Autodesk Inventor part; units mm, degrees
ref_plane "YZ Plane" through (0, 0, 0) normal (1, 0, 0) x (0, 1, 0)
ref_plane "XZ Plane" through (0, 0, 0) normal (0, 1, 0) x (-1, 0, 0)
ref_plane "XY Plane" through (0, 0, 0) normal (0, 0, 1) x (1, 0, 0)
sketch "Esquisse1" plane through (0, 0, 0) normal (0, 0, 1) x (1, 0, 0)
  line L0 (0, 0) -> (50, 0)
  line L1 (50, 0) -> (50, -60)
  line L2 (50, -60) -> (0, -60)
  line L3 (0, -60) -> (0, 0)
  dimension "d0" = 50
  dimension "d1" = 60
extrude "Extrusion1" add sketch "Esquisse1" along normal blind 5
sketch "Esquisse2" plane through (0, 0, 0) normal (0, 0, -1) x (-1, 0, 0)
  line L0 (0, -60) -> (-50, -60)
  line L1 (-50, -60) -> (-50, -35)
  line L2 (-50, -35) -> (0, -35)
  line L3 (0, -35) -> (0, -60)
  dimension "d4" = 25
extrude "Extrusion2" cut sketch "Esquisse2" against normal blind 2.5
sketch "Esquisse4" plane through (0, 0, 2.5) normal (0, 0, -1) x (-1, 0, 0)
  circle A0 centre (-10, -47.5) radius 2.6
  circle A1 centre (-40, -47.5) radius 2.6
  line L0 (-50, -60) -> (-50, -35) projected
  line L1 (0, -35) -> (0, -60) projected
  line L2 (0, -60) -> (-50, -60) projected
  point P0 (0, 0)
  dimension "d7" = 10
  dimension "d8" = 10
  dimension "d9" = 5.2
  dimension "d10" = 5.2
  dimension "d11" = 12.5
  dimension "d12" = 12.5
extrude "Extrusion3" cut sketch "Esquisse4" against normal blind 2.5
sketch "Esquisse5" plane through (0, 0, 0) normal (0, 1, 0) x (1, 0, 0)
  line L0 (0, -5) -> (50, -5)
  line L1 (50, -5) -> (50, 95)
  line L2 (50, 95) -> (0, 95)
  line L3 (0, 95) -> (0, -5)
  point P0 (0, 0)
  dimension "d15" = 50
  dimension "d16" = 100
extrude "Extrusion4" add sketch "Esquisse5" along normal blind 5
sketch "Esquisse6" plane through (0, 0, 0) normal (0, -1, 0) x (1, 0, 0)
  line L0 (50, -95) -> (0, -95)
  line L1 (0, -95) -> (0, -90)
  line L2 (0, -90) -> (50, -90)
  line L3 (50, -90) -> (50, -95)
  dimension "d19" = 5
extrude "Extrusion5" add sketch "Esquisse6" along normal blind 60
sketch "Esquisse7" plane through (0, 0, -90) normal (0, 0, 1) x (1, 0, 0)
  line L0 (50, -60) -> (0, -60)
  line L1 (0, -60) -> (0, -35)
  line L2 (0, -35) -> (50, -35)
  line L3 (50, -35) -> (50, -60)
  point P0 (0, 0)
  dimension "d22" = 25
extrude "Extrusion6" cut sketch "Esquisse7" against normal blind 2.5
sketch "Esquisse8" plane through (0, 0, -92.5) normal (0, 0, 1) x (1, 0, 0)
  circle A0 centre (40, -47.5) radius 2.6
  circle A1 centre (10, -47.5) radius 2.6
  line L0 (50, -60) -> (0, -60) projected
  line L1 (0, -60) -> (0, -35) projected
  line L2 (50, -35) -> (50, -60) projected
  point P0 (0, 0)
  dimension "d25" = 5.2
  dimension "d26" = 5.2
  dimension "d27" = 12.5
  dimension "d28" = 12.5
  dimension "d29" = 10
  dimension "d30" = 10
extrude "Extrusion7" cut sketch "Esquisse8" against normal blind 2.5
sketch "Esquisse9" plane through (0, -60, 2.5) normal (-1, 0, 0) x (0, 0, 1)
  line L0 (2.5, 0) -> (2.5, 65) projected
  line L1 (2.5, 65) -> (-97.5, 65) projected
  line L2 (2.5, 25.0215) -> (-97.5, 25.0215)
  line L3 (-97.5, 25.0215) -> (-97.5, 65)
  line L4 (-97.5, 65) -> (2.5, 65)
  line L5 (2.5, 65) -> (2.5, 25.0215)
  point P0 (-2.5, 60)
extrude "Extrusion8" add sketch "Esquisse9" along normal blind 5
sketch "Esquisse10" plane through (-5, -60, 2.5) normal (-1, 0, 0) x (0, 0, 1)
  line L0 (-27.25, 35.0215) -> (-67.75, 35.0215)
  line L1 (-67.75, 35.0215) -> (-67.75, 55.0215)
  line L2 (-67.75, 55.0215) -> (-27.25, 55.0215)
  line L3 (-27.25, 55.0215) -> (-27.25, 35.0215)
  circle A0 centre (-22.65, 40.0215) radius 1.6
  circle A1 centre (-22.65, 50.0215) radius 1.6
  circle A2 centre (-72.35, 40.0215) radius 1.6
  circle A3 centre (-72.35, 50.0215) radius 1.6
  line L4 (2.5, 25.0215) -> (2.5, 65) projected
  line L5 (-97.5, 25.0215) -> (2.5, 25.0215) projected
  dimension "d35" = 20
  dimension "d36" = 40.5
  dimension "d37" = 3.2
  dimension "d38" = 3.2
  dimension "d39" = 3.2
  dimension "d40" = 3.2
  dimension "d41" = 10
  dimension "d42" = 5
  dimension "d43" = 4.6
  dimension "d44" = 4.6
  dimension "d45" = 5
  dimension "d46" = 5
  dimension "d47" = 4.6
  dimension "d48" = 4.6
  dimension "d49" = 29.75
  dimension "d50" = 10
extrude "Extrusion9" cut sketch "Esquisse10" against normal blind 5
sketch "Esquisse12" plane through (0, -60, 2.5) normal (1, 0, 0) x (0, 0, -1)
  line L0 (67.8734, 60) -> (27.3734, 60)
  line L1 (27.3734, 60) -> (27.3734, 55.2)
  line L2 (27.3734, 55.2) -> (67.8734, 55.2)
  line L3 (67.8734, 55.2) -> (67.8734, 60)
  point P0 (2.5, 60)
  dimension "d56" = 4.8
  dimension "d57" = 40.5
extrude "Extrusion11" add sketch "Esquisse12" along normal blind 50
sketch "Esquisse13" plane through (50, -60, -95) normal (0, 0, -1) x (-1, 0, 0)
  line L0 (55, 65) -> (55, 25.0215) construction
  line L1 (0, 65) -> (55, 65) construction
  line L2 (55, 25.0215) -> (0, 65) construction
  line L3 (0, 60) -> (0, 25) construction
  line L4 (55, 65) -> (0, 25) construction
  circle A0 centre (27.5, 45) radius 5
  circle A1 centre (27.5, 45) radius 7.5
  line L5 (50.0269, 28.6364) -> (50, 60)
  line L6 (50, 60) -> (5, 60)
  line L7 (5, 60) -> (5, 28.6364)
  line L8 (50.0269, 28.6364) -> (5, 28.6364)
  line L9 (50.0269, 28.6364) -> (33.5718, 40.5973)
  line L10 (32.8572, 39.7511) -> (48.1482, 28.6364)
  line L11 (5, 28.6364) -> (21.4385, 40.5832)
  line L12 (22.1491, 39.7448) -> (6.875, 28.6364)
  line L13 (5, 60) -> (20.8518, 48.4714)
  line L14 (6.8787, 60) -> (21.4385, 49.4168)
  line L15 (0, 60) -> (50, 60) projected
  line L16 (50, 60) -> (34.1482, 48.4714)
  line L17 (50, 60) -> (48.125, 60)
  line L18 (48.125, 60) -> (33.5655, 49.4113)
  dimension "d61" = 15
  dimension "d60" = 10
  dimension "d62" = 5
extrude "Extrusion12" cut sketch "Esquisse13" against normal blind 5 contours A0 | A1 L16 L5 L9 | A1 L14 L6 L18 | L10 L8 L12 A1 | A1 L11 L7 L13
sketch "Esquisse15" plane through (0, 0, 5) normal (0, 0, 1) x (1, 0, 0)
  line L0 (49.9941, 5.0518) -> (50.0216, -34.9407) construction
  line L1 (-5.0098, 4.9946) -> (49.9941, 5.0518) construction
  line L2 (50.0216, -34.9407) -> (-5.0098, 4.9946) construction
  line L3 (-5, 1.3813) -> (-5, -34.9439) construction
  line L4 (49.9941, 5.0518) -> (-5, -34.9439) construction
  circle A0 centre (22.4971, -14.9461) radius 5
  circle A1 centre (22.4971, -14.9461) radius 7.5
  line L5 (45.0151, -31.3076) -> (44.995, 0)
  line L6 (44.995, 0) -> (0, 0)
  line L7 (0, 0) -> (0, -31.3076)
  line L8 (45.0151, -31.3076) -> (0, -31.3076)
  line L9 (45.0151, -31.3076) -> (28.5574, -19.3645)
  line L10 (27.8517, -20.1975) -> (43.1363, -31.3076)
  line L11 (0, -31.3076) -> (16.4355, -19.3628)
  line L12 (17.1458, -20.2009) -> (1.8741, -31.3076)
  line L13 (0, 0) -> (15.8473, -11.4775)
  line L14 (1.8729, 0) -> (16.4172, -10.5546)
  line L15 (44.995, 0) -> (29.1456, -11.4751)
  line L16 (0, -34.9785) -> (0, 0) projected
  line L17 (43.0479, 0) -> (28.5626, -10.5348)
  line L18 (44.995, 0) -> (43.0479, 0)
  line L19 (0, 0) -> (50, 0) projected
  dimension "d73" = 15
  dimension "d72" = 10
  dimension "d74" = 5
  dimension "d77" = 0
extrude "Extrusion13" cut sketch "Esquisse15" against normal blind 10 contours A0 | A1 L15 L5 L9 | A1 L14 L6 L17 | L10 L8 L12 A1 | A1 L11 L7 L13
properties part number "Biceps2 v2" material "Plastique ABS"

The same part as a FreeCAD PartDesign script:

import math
import FreeCAD as App
import Part
import Sketcher
from FreeCAD import Vector
Q = App.Units.Quantity


def add_polygon(sketch, points):
    """Adds a closed chain of lines whose ends are joined by coincident constraints."""
    first, n = sketch.GeometryCount, len(points)
    for a, b in zip(points, points[1:] + points[:1]):
        sketch.addGeometry(Part.LineSegment(App.Vector(*a, 0), App.Vector(*b, 0)), False)
    for i in range(n):
        sketch.addConstraint(Sketcher.Constraint("Coincident", first + i, 2, first + (i + 1) % n, 1))

doc = App.newDocument("Part")
params = doc.addObject("Spreadsheet::Sheet", "Params")
for row, (alias, value) in enumerate([
    ("sketch1_width", "50 mm"),
    ("sketch1_height", "60 mm"),
    ("pad1_length", "5 mm"),
    ("sketch2_height", "25 mm"),
    ("sketch2_width", "50 mm"),
    ("pocket1_length", "2.5 mm"),
    ("sketch3_diameter", "5.2 mm"),
    ("pocket2_length", "2.5 mm"),
    ("sketch4_width", "50 mm"),
    ("sketch4_height", "100 mm"),
    ("pad2_length", "5 mm"),
    ("sketch5_height", "5 mm"),
    ("sketch5_width", "50 mm"),
    ("pad3_length", "60 mm"),
    ("sketch6_height", "25 mm"),
    ("sketch6_width", "50 mm"),
    ("pocket3_length", "2.5 mm"),
    ("sketch7_diameter", "5.2 mm"),
    ("pocket4_length", "2.5 mm"),
    ("sketch8_height", "100 mm"),
    ("pad4_length", "5 mm"),
    ("sketch9_diameter", "3.2 mm"),
    ("sketch9_width", "20 mm"),
    ("sketch9_height", "40.5 mm"),
    ("pocket5_length", "5 mm"),
    ("sketch10_width", "4.8 mm"),
    ("sketch10_height", "40.5 mm"),
    ("pad5_length", "50 mm"),
    ("sketch11_diameter", "10 mm"),
    ("sketch11_radius", "7.5 mm"),
    ("sketch11_radius2", "7.5 mm"),
    ("sketch11_radius3", "7.5 mm"),
    ("sketch11_radius4", "7.5 mm"),
    ("pocket6_length", "5 mm"),
    ("sketch12_diameter", "10 mm"),
    ("sketch12_radius", "7.5 mm"),
    ("sketch12_radius2", "7.5 mm"),
    ("sketch12_radius3", "7.5 mm"),
    ("sketch12_radius4", "7.5 mm"),
    ("pocket7_length", "10 mm"),
], start=1):
    params.set(f"A{row}", alias)
    params.set(f"B{row}", "=" + value)
    params.setAlias(f"B{row}", alias)

body = doc.addObject("PartDesign::Body", "Body")

# Sketch on XY plane
sketch1 = body.newObject("Sketcher::SketchObject", "Sketch")
sketch1.AttachmentSupport = (doc.getObject("XY_Plane"), [""])
sketch1.MapMode = "FlatFace"
add_polygon(sketch1, [(50, 0), (0, 0), (0, -60), (50, -60)])  # lines 0-3
sketch1.addConstraint(Sketcher.Constraint("Horizontal", 0))
sketch1.addConstraint(Sketcher.Constraint("Vertical", 1))
sketch1.addConstraint(Sketcher.Constraint("Horizontal", 2))
sketch1.addConstraint(Sketcher.Constraint("Vertical", 3))
sketch1.addConstraint(Sketcher.Constraint("Coincident", 0, 2, -1, 1))
sketch1.addConstraint(Sketcher.Constraint("DistanceX", 0, 2, 0, 1, Q("50 mm")))
sketch1.addConstraint(Sketcher.Constraint("DistanceY", 1, 2, 1, 1, Q("60 mm")))
sketch1.setExpression("Constraints[9]", "Params.sketch1_width")
sketch1.setExpression("Constraints[10]", "Params.sketch1_height")
pad1 = body.newObject("PartDesign::Pad", "Pad")
pad1.Profile = sketch1
pad1.setExpression("Length", "Params.pad1_length")

# Sketch on XY plane
sketch2 = body.newObject("Sketcher::SketchObject", "Sketch001")
sketch2.AttachmentSupport = (doc.getObject("XY_Plane"), [""])
sketch2.MapMode = "FlatFace"
add_polygon(sketch2, [(50, -60), (0, -60), (0, -35), (50, -35)])  # lines 0-3
sketch2.addConstraint(Sketcher.Constraint("Horizontal", 0))
sketch2.addConstraint(Sketcher.Constraint("Vertical", 1))
sketch2.addConstraint(Sketcher.Constraint("Horizontal", 2))
sketch2.addConstraint(Sketcher.Constraint("Vertical", 3))
sketch2.addConstraint(Sketcher.Constraint("PointOnObject", 0, 2, -2))
sketch2.addConstraint(Sketcher.Constraint("DistanceY", 1, 1, 1, 2, Q("25 mm")))
sketch2.addConstraint(Sketcher.Constraint("DistanceX", 0, 2, 0, 1, Q("50 mm")))
sketch2.addConstraint(Sketcher.Constraint("DistanceY", 0, 2, -1, 1, Q("60 mm")))
sketch2.setExpression("Constraints[9]", "Params.sketch2_height")
sketch2.setExpression("Constraints[10]", "Params.sketch2_width")
pocket1 = body.newObject("PartDesign::Pocket", "Pocket")
pocket1.Profile = sketch2
pocket1.setExpression("Length", "Params.pocket1_length")
pocket1.Reversed = True

# Sketch on XY plane
sketch3 = body.newObject("Sketcher::SketchObject", "Sketch002")
sketch3.AttachmentSupport = (doc.getObject("XY_Plane"), [""])
sketch3.MapMode = "FlatFace"
sketch3.AttachmentOffset = App.Placement(Vector(0, 0, 2.5), App.Rotation())
sketch3.addGeometry(Part.Circle(Vector(10, -47.5, 0), Vector(0, 0, 1), 2.6), False)
sketch3.addGeometry(Part.Circle(Vector(40, -47.5, 0), Vector(0, 0, 1), 2.6), False)
sketch3.addConstraint(Sketcher.Constraint("Equal", 0, 1))
sketch3.addConstraint(Sketcher.Constraint("Horizontal", 0, 3, 1, 3))
sketch3.addConstraint(Sketcher.Constraint("Diameter", 0, Q("5.2 mm")))
sketch3.addConstraint(Sketcher.Constraint("DistanceX", -1, 1, 0, 3, Q("10 mm")))
sketch3.addConstraint(Sketcher.Constraint("DistanceX", -1, 1, 1, 3, Q("40 mm")))
sketch3.addConstraint(Sketcher.Constraint("DistanceY", 0, 3, -1, 1, Q("47.5 mm")))
sketch3.setExpression("Constraints[2]", "Params.sketch3_diameter")
pocket2 = body.newObject("PartDesign::Pocket", "Pocket001")
pocket2.Profile = sketch3
pocket2.setExpression("Length", "Params.pocket2_length")
pocket2.Reversed = True

# Sketch on XZ plane
sketch4 = body.newObject("Sketcher::SketchObject", "Sketch003")
sketch4.AttachmentSupport = (doc.getObject("XZ_Plane"), [""])
sketch4.MapMode = "FlatFace"
add_polygon(sketch4, [(0, -95), (0, 5), (50, 5), (50, -95)])  # lines 0-3
sketch4.addConstraint(Sketcher.Constraint("Vertical", 0))
sketch4.addConstraint(Sketcher.Constraint("Horizontal", 1))
sketch4.addConstraint(Sketcher.Constraint("Vertical", 2))
sketch4.addConstraint(Sketcher.Constraint("Horizontal", 3))
sketch4.addConstraint(Sketcher.Constraint("PointOnObject", 0, 2, -2))
sketch4.addConstraint(Sketcher.Constraint("DistanceX", 1, 1, 1, 2, Q("50 mm")))
sketch4.addConstraint(Sketcher.Constraint("DistanceY", 0, 1, 0, 2, Q("100 mm")))
sketch4.addConstraint(Sketcher.Constraint("DistanceY", -1, 1, 0, 2, Q("5 mm")))
sketch4.setExpression("Constraints[9]", "Params.sketch4_width")
sketch4.setExpression("Constraints[10]", "Params.sketch4_height")
pad2 = body.newObject("PartDesign::Pad", "Pad001")
pad2.Profile = sketch4
pad2.setExpression("Length", "Params.pad2_length")
pad2.Reversed = True

# Sketch on XZ plane
sketch5 = body.newObject("Sketcher::SketchObject", "Sketch004")
sketch5.AttachmentSupport = (doc.getObject("XZ_Plane"), [""])
sketch5.MapMode = "FlatFace"
add_polygon(sketch5, [(0, -95), (50, -95), (50, -90), (0, -90)])  # lines 0-3
sketch5.addConstraint(Sketcher.Constraint("Horizontal", 0))
sketch5.addConstraint(Sketcher.Constraint("Vertical", 1))
sketch5.addConstraint(Sketcher.Constraint("Horizontal", 2))
sketch5.addConstraint(Sketcher.Constraint("Vertical", 3))
sketch5.addConstraint(Sketcher.Constraint("PointOnObject", 2, 2, -2))
sketch5.addConstraint(Sketcher.Constraint("DistanceY", 1, 1, 1, 2, Q("5 mm")))
sketch5.addConstraint(Sketcher.Constraint("DistanceX", 0, 1, 0, 2, Q("50 mm")))
sketch5.addConstraint(Sketcher.Constraint("DistanceY", 0, 2, -1, 1, Q("95 mm")))
sketch5.setExpression("Constraints[9]", "Params.sketch5_height")
sketch5.setExpression("Constraints[10]", "Params.sketch5_width")
pad3 = body.newObject("PartDesign::Pad", "Pad002")
pad3.Profile = sketch5
pad3.setExpression("Length", "Params.pad3_length")

# Sketch on XY plane
sketch6 = body.newObject("Sketcher::SketchObject", "Sketch005")
sketch6.AttachmentSupport = (doc.getObject("XY_Plane"), [""])
sketch6.MapMode = "FlatFace"
sketch6.AttachmentOffset = App.Placement(Vector(0, 0, -90), App.Rotation())
add_polygon(sketch6, [(0, -60), (50, -60), (50, -35), (0, -35)])  # lines 0-3
sketch6.addConstraint(Sketcher.Constraint("Horizontal", 0))
sketch6.addConstraint(Sketcher.Constraint("Vertical", 1))
sketch6.addConstraint(Sketcher.Constraint("Horizontal", 2))
sketch6.addConstraint(Sketcher.Constraint("Vertical", 3))
sketch6.addConstraint(Sketcher.Constraint("PointOnObject", 2, 2, -2))
sketch6.addConstraint(Sketcher.Constraint("DistanceY", 1, 1, 1, 2, Q("25 mm")))
sketch6.addConstraint(Sketcher.Constraint("DistanceX", 0, 1, 0, 2, Q("50 mm")))
sketch6.addConstraint(Sketcher.Constraint("DistanceY", 0, 2, -1, 1, Q("60 mm")))
sketch6.setExpression("Constraints[9]", "Params.sketch6_height")
sketch6.setExpression("Constraints[10]", "Params.sketch6_width")
pocket3 = body.newObject("PartDesign::Pocket", "Pocket002")
pocket3.Profile = sketch6
pocket3.setExpression("Length", "Params.pocket3_length")

# Sketch on XY plane
sketch7 = body.newObject("Sketcher::SketchObject", "Sketch006")
sketch7.AttachmentSupport = (doc.getObject("XY_Plane"), [""])
sketch7.MapMode = "FlatFace"
sketch7.AttachmentOffset = App.Placement(Vector(0, 0, -92.5), App.Rotation())
sketch7.addGeometry(Part.Circle(Vector(40, -47.5, 0), Vector(0, 0, 1), 2.6), False)
sketch7.addGeometry(Part.Circle(Vector(10, -47.5, 0), Vector(0, 0, 1), 2.6), False)
sketch7.addConstraint(Sketcher.Constraint("Equal", 0, 1))
sketch7.addConstraint(Sketcher.Constraint("Horizontal", 0, 3, 1, 3))
sketch7.addConstraint(Sketcher.Constraint("Diameter", 0, Q("5.2 mm")))
sketch7.addConstraint(Sketcher.Constraint("DistanceX", -1, 1, 1, 3, Q("10 mm")))
sketch7.addConstraint(Sketcher.Constraint("DistanceX", -1, 1, 0, 3, Q("40 mm")))
sketch7.addConstraint(Sketcher.Constraint("DistanceY", 0, 3, -1, 1, Q("47.5 mm")))
sketch7.setExpression("Constraints[2]", "Params.sketch7_diameter")
pocket4 = body.newObject("PartDesign::Pocket", "Pocket003")
pocket4.Profile = sketch7
pocket4.setExpression("Length", "Params.pocket4_length")

# Sketch on YZ plane
sketch8 = body.newObject("Sketcher::SketchObject", "Sketch007")
sketch8.AttachmentSupport = (doc.getObject("YZ_Plane"), [""])
sketch8.MapMode = "FlatFace"
add_polygon(sketch8, [(-35, -95), (-35, 5), (5, 5), (5, -95)])  # lines 0-3
sketch8.addConstraint(Sketcher.Constraint("Vertical", 0))
sketch8.addConstraint(Sketcher.Constraint("Horizontal", 1))
sketch8.addConstraint(Sketcher.Constraint("Vertical", 2))
sketch8.addConstraint(Sketcher.Constraint("Horizontal", 3))
sketch8.addConstraint(Sketcher.Constraint("DistanceY", 0, 1, 0, 2, Q("100 mm")))
sketch8.addConstraint(Sketcher.Constraint("DistanceY", -1, 1, 0, 2, Q("5 mm")))
sketch8.addConstraint(Sketcher.Constraint("DistanceX", -1, 1, 1, 2, Q("5 mm")))
sketch8.addConstraint(Sketcher.Constraint("DistanceX", 1, 1, 1, 2, Q("39.9785 mm")))
sketch8.setExpression("Constraints[8]", "Params.sketch8_height")
pad4 = body.newObject("PartDesign::Pad", "Pad003")
pad4.Profile = sketch8
pad4.setExpression("Length", "Params.pad4_length")
pad4.Reversed = True

# Sketch on YZ plane
sketch9 = body.newObject("Sketcher::SketchObject", "Sketch008")
sketch9.AttachmentSupport = (doc.getObject("YZ_Plane"), [""])
sketch9.MapMode = "FlatFace"
sketch9.AttachmentOffset = App.Placement(Vector(0, 0, -5), App.Rotation())
add_polygon(sketch9, [(-25, -65.2), (-25, -24.8), (-5, -24.8), (-5, -65.2)])  # lines 0-3
sketch9.addGeometry(Part.Circle(Vector(-20, -20.1, 0), Vector(0, 0, 1), 1.6), False)  # 4
sketch9.addGeometry(Part.Circle(Vector(-10, -20.1, 0), Vector(0, 0, 1), 1.6), False)  # 5
sketch9.addGeometry(Part.Circle(Vector(-20, -69.8, 0), Vector(0, 0, 1), 1.6), False)  # 6
sketch9.addGeometry(Part.Circle(Vector(-10, -69.8, 0), Vector(0, 0, 1), 1.6), False)  # 7
sketch9.addConstraint(Sketcher.Constraint("Vertical", 0))
sketch9.addConstraint(Sketcher.Constraint("Horizontal", 1))
sketch9.addConstraint(Sketcher.Constraint("Vertical", 2))
sketch9.addConstraint(Sketcher.Constraint("Horizontal", 3))
sketch9.addConstraint(Sketcher.Constraint("Equal", 4, 5))
sketch9.addConstraint(Sketcher.Constraint("Equal", 5, 6))
sketch9.addConstraint(Sketcher.Constraint("Equal", 6, 7))
sketch9.addConstraint(Sketcher.Constraint("Horizontal", 4, 3, 5, 3))
sketch9.addConstraint(Sketcher.Constraint("Horizontal", 6, 3, 7, 3))
sketch9.addConstraint(Sketcher.Constraint("Vertical", 4, 3, 6, 3))
sketch9.addConstraint(Sketcher.Constraint("Vertical", 5, 3, 7, 3))
sketch9.addConstraint(Sketcher.Constraint("Diameter", 4, Q("3.2 mm")))
sketch9.addConstraint(Sketcher.Constraint("DistanceX", 1, 1, 1, 2, Q("20 mm")))
sketch9.addConstraint(Sketcher.Constraint("DistanceY", 0, 1, 0, 2, Q("40.5 mm")))
sketch9.addConstraint(Sketcher.Constraint("DistanceX", 4, 3, 5, 3, Q("10 mm")))
sketch9.addConstraint(Sketcher.Constraint("DistanceX", 0, 2, 4, 3, Q("5 mm")))
sketch9.addConstraint(Sketcher.Constraint("DistanceY", 0, 2, 4, 3, Q("4.6 mm")))
sketch9.addConstraint(Sketcher.Constraint("DistanceY", 7, 3, 2, 2, Q("4.6 mm")))
sketch9.addConstraint(Sketcher.Constraint("DistanceY", 4, 3, -1, 1, Q("20.15 mm")))
sketch9.addConstraint(Sketcher.Constraint("DistanceX", 4, 3, -1, 1, Q("19.9785 mm")))
sketch9.setExpression("Constraints[15]", "Params.sketch9_diameter")
sketch9.setExpression("Constraints[16]", "Params.sketch9_width")
sketch9.setExpression("Constraints[17]", "Params.sketch9_height")
pocket5 = body.newObject("PartDesign::Pocket", "Pocket004")
pocket5.Profile = sketch9
pocket5.setExpression("Length", "Params.pocket5_length")
pocket5.Reversed = True

# Sketch on YZ plane
sketch10 = body.newObject("Sketcher::SketchObject", "Sketch009")
sketch10.AttachmentSupport = (doc.getObject("YZ_Plane"), [""])
sketch10.MapMode = "FlatFace"
add_polygon(sketch10, [(-4.8, -65.4), (0, -65.4), (0, -24.9), (-4.8, -24.9)])  # lines 0-3
sketch10.addConstraint(Sketcher.Constraint("Horizontal", 0))
sketch10.addConstraint(Sketcher.Constraint("Vertical", 1))
sketch10.addConstraint(Sketcher.Constraint("Horizontal", 2))
sketch10.addConstraint(Sketcher.Constraint("Vertical", 3))
sketch10.addConstraint(Sketcher.Constraint("PointOnObject", 0, 2, -2))
sketch10.addConstraint(Sketcher.Constraint("DistanceX", 0, 1, 0, 2, Q("4.8 mm")))
sketch10.addConstraint(Sketcher.Constraint("DistanceY", 1, 1, 1, 2, Q("40.5 mm")))
sketch10.addConstraint(Sketcher.Constraint("DistanceY", 0, 2, -1, 1, Q("65.3734 mm")))
sketch10.setExpression("Constraints[9]", "Params.sketch10_width")
sketch10.setExpression("Constraints[10]", "Params.sketch10_height")
pad5 = body.newObject("PartDesign::Pad", "Pad004")
pad5.Profile = sketch10
pad5.setExpression("Length", "Params.pad5_length")

# Sketch on XY plane
sketch11 = body.newObject("Sketcher::SketchObject", "Sketch010")
sketch11.AttachmentSupport = (doc.getObject("XY_Plane"), [""])
sketch11.MapMode = "FlatFace"
sketch11.AttachmentOffset = App.Placement(Vector(0, 0, -95), App.Rotation())
sketch11.addGeometry(Part.Circle(Vector(22.5, -15, 0), Vector(0, 0, 1), 5), False)
sketch11.addGeometry(Part.ArcOfCircle(Part.Circle(Vector(22.5, -15, 0), Vector(0, 0, 1), 7.5), math.radians(152.428401), math.radians(215.946101)), False)
sketch11.addGeometry(Part.LineSegment(Vector(16.4282, -19.4027, 0), Vector(-0.0269, -31.3636, 0)), False)
sketch11.addGeometry(Part.LineSegment(Vector(-0.0269, -31.3636, 0), Vector(0, 0, 0)), False)
sketch11.addGeometry(Part.LineSegment(Vector(0, 0, 0), Vector(15.8518, -11.5286, 0)), False)
sketch11.addGeometry(Part.ArcOfCircle(Part.Circle(Vector(22.5, -15, 0), Vector(0, 0, 1), 7.5), math.radians(36.079496), math.radians(143.972458)), False)
sketch11.addGeometry(Part.LineSegment(Vector(16.4345, -10.5887, 0), Vector(1.875, 0, 0)), False)
sketch11.addGeometry(Part.LineSegment(Vector(1.875, 0, 0), Vector(43.1213, 0, 0)), False)
sketch11.addGeometry(Part.LineSegment(Vector(43.1213, 0, 0), Vector(28.5615, -10.5832, 0)), False)
sketch11.addGeometry(Part.LineSegment(Vector(1.8518, -31.3636, 0), Vector(17.1428, -20.2489, 0)), False)
sketch11.addGeometry(Part.ArcOfCircle(Part.Circle(Vector(22.5, -15, 0), Vector(0, 0, 1), 7.5), math.radians(-135.585033), math.radians(-44.483028)), False)
sketch11.addGeometry(Part.LineSegment(Vector(27.8509, -20.2552, 0), Vector(43.125, -31.3636, 0)), False)
sketch11.addGeometry(Part.LineSegment(Vector(43.125, -31.3636, 0), Vector(1.8518, -31.3636, 0)), False)
sketch11.addGeometry(Part.ArcOfCircle(Part.Circle(Vector(22.5, -15, 0), Vector(0, 0, 1), 7.5), math.radians(-36.079496), math.radians(27.571599)), False)
sketch11.addGeometry(Part.LineSegment(Vector(29.1482, -11.5286, 0), Vector(45, 0, 0)), False)
sketch11.addGeometry(Part.LineSegment(Vector(45, 0, 0), Vector(45, -31.3636, 0)), False)
sketch11.addGeometry(Part.LineSegment(Vector(45, -31.3636, 0), Vector(28.5615, -19.4168, 0)), False)
sketch11.addConstraint(Sketcher.Constraint("Coincident", 1, 2, 2, 1))
sketch11.addConstraint(Sketcher.Constraint("Coincident", 2, 2, 3, 1))
sketch11.addConstraint(Sketcher.Constraint("Coincident", 3, 2, 4, 1))
sketch11.addConstraint(Sketcher.Constraint("Coincident", 4, 2, 1, 1))
sketch11.addConstraint(Sketcher.Constraint("Coincident", 5, 2, 6, 1))
sketch11.addConstraint(Sketcher.Constraint("Coincident", 6, 2, 7, 1))
sketch11.addConstraint(Sketcher.Constraint("Coincident", 7, 2, 8, 1))
sketch11.addConstraint(Sketcher.Constraint("Coincident", 8, 2, 5, 1))
sketch11.addConstraint(Sketcher.Constraint("Coincident", 9, 2, 10, 1))
sketch11.addConstraint(Sketcher.Constraint("Coincident", 10, 2, 11, 1))
sketch11.addConstraint(Sketcher.Constraint("Coincident", 11, 2, 12, 1))
sketch11.addConstraint(Sketcher.Constraint("Coincident", 12, 2, 9, 1))
sketch11.addConstraint(Sketcher.Constraint("Coincident", 13, 2, 14, 1))
sketch11.addConstraint(Sketcher.Constraint("Coincident", 14, 2, 15, 1))
sketch11.addConstraint(Sketcher.Constraint("Coincident", 15, 2, 16, 1))
sketch11.addConstraint(Sketcher.Constraint("Coincident", 16, 2, 13, 1))
sketch11.addConstraint(Sketcher.Constraint("Horizontal", 7))
sketch11.addConstraint(Sketcher.Constraint("Horizontal", 12))
sketch11.addConstraint(Sketcher.Constraint("Vertical", 15))
sketch11.addConstraint(Sketcher.Constraint("Coincident", 3, 2, -1, 1))
sketch11.addConstraint(Sketcher.Constraint("Coincident", 1, 3, 0, 3))
sketch11.addConstraint(Sketcher.Constraint("Coincident", 5, 3, 0, 3))
sketch11.addConstraint(Sketcher.Constraint("Coincident", 10, 3, 0, 3))
sketch11.addConstraint(Sketcher.Constraint("Coincident", 13, 3, 0, 3))
sketch11.addConstraint(Sketcher.Constraint("PointOnObject", 6, 2, -1))
sketch11.addConstraint(Sketcher.Constraint("PointOnObject", 14, 2, -1))
sketch11.addConstraint(Sketcher.Constraint("Diameter", 0, Q("10 mm")))
sketch11.addConstraint(Sketcher.Constraint("Radius", 1, Q("7.5 mm")))
sketch11.addConstraint(Sketcher.Constraint("Radius", 5, Q("7.5 mm")))
sketch11.addConstraint(Sketcher.Constraint("Radius", 10, Q("7.5 mm")))
sketch11.addConstraint(Sketcher.Constraint("Radius", 13, Q("7.5 mm")))
sketch11.addConstraint(Sketcher.Constraint("DistanceY", 0, 3, -1, 1, Q("15 mm")))
sketch11.addConstraint(Sketcher.Constraint("DistanceX", -1, 1, 14, 2, Q("45 mm")))
sketch11.addConstraint(Sketcher.Constraint("DistanceX", 12, 2, 4, 2, Q("14 mm")))
sketch11.addConstraint(Sketcher.Constraint("DistanceX", -1, 1, 0, 3, Q("22.5 mm")))
sketch11.addConstraint(Sketcher.Constraint("DistanceY", 4, 2, 5, 2, Q("0.94 mm")))
sketch11.addConstraint(Sketcher.Constraint("Distance", 2, Q("20.343 mm")))
sketch11.addConstraint(Sketcher.Constraint("DistanceX", 7, 1, 7, 2, Q("41.2463 mm")))
sketch11.addConstraint(Sketcher.Constraint("DistanceX", 12, 2, 12, 1, Q("41.2732 mm")))
sketch11.addConstraint(Sketcher.Constraint("DistanceY", 15, 2, 15, 1, Q("31.3636 mm")))
sketch11.addConstraint(Sketcher.Constraint("DistanceX", 2, 2, -1, 1, Q("0.027 mm")))
sketch11.addConstraint(Sketcher.Constraint("DistanceX", -1, 1, 6, 2, Q("1.875 mm")))
sketch11.addConstraint(Sketcher.Constraint("DistanceY", 9, 2, -1, 1, Q("20.249 mm")))
sketch11.addConstraint(Sketcher.Constraint("DistanceX", -1, 1, 10, 2, Q("27.851 mm")))
sketch11.addConstraint(Sketcher.Constraint("DistanceX", -1, 1, 11, 2, Q("43.125 mm")))
sketch11.addConstraint(Sketcher.Constraint("DistanceY", 2, 2, 1, 2, Q("11.961 mm")))
sketch11.addConstraint(Sketcher.Constraint("DistanceY", 12, 2, 1, 2, Q("11.961 mm")))
sketch11.addConstraint(Sketcher.Constraint("DistanceY", 15, 2, 13, 2, Q("19.835 mm")))
sketch11.addConstraint(Sketcher.Constraint("DistanceX", -1, 1, 8, 2, Q("28.5615 mm")))
sketch11.addConstraint(Sketcher.Constraint("DistanceX", -1, 1, 16, 2, Q("28.5615 mm")))
sketch11.setExpression("Constraints[26]", "Params.sketch11_diameter")
sketch11.setExpression("Constraints[27]", "Params.sketch11_radius")
sketch11.setExpression("Constraints[28]", "Params.sketch11_radius2")
sketch11.setExpression("Constraints[29]", "Params.sketch11_radius3")
sketch11.setExpression("Constraints[30]", "Params.sketch11_radius4")
pocket6 = body.newObject("PartDesign::Pocket", "Pocket005")
pocket6.Profile = sketch11
pocket6.setExpression("Length", "Params.pocket6_length")
pocket6.Reversed = True

# Sketch on XY plane
sketch12 = body.newObject("Sketcher::SketchObject", "Sketch011")
sketch12.AttachmentSupport = (doc.getObject("XY_Plane"), [""])
sketch12.MapMode = "FlatFace"
sketch12.AttachmentOffset = App.Placement(Vector(0, 0, 5), App.Rotation())
sketch12.addGeometry(Part.Circle(Vector(22.4971, -14.9461, 0), Vector(0, 0, 1), 5), False)
sketch12.addGeometry(Part.ArcOfCircle(Part.Circle(Vector(22.4971, -14.9461, 0), Vector(0, 0, 1), 7.5), math.radians(-36.094773), math.radians(27.56783)), False)
sketch12.addGeometry(Part.LineSegment(Vector(28.5574, -19.3645, 0), Vector(45.0151, -31.3076, 0)), False)
sketch12.addGeometry(Part.LineSegment(Vector(45.0151, -31.3076, 0), Vector(44.995, 0, 0)), False)
sketch12.addGeometry(Part.LineSegment(Vector(44.995, 0, 0), Vector(29.1456, -11.4751, 0)), False)
sketch12.addGeometry(Part.ArcOfCircle(Part.Circle(Vector(22.4971, -14.9461, 0), Vector(0, 0, 1), 7.5), math.radians(36.027542), math.radians(144.159491)), False)
sketch12.addGeometry(Part.LineSegment(Vector(28.5626, -10.5348, 0), Vector(43.0479, 0, 0)), False)
sketch12.addGeometry(Part.LineSegment(Vector(43.0479, 0, 0), Vector(1.8729, 0, 0)), False)
sketch12.addGeometry(Part.LineSegment(Vector(1.8729, 0, 0), Vector(16.4172, -10.5546, 0)), False)
sketch12.addGeometry(Part.LineSegment(Vector(43.1363, -31.3076, 0), Vector(27.8517, -20.1975, 0)), False)
sketch12.addGeometry(Part.ArcOfCircle(Part.Circle(Vector(22.4971, -14.9461, 0), Vector(0, 0, 1), 7.5), math.radians(-135.521293), math.radians(-44.44251)), False)
sketch12.addGeometry(Part.LineSegment(Vector(17.1458, -20.2009, 0), Vector(1.8741, -31.3076, 0)), False)
sketch12.addGeometry(Part.LineSegment(Vector(1.8741, -31.3076, 0), Vector(43.1363, -31.3076, 0)), False)
sketch12.addGeometry(Part.ArcOfCircle(Part.Circle(Vector(22.4971, -14.9461, 0), Vector(0, 0, 1), 7.5), math.radians(152.453019), math.radians(216.078428)), False)
sketch12.addGeometry(Part.LineSegment(Vector(15.8473, -11.4775, 0), Vector(0, 0, 0)), False)
sketch12.addGeometry(Part.LineSegment(Vector(0, 0, 0), Vector(0, -31.3076, 0)), False)
sketch12.addGeometry(Part.LineSegment(Vector(0, -31.3076, 0), Vector(16.4355, -19.3628, 0)), False)
sketch12.addConstraint(Sketcher.Constraint("Coincident", 1, 1, 2, 1))
sketch12.addConstraint(Sketcher.Constraint("Coincident", 2, 2, 3, 1))
sketch12.addConstraint(Sketcher.Constraint("Coincident", 3, 2, 4, 1))
sketch12.addConstraint(Sketcher.Constraint("Coincident", 4, 2, 1, 2))
sketch12.addConstraint(Sketcher.Constraint("Coincident", 5, 1, 6, 1))
sketch12.addConstraint(Sketcher.Constraint("Coincident", 6, 2, 7, 1))
sketch12.addConstraint(Sketcher.Constraint("Coincident", 7, 2, 8, 1))
sketch12.addConstraint(Sketcher.Constraint("Coincident", 8, 2, 5, 2))
sketch12.addConstraint(Sketcher.Constraint("Coincident", 9, 2, 10, 2))
sketch12.addConstraint(Sketcher.Constraint("Coincident", 10, 1, 11, 1))
sketch12.addConstraint(Sketcher.Constraint("Coincident", 11, 2, 12, 1))
sketch12.addConstraint(Sketcher.Constraint("Coincident", 12, 2, 9, 1))
sketch12.addConstraint(Sketcher.Constraint("Coincident", 13, 1, 14, 1))
sketch12.addConstraint(Sketcher.Constraint("Coincident", 14, 2, 15, 1))
sketch12.addConstraint(Sketcher.Constraint("Coincident", 15, 2, 16, 1))
sketch12.addConstraint(Sketcher.Constraint("Coincident", 16, 2, 13, 2))
sketch12.addConstraint(Sketcher.Constraint("Horizontal", 7))
sketch12.addConstraint(Sketcher.Constraint("Horizontal", 12))
sketch12.addConstraint(Sketcher.Constraint("Vertical", 15))
sketch12.addConstraint(Sketcher.Constraint("Coincident", 14, 2, -1, 1))
sketch12.addConstraint(Sketcher.Constraint("Coincident", 1, 3, 0, 3))
sketch12.addConstraint(Sketcher.Constraint("Coincident", 5, 3, 0, 3))
sketch12.addConstraint(Sketcher.Constraint("Coincident", 10, 3, 0, 3))
sketch12.addConstraint(Sketcher.Constraint("Coincident", 13, 3, 0, 3))
sketch12.addConstraint(Sketcher.Constraint("PointOnObject", 3, 2, -1))
sketch12.addConstraint(Sketcher.Constraint("PointOnObject", 6, 2, -1))
sketch12.addConstraint(Sketcher.Constraint("Diameter", 0, Q("10 mm")))
sketch12.addConstraint(Sketcher.Constraint("Radius", 1, Q("7.5 mm")))
sketch12.addConstraint(Sketcher.Constraint("Radius", 5, Q("7.5 mm")))
sketch12.addConstraint(Sketcher.Constraint("Radius", 10, Q("7.5 mm")))
sketch12.addConstraint(Sketcher.Constraint("Radius", 13, Q("7.5 mm")))
sketch12.addConstraint(Sketcher.Constraint("DistanceX", 7, 2, 7, 1, Q("41.175 mm")))
sketch12.addConstraint(Sketcher.Constraint("DistanceX", 8, 2, 0, 3, Q("6.08 mm")))
sketch12.addConstraint(Sketcher.Constraint("DistanceY", 12, 2, 9, 2, Q("11.11 mm")))
sketch12.addConstraint(Sketcher.Constraint("DistanceY", 15, 2, 13, 1, Q("19.83 mm")))
sketch12.addConstraint(Sketcher.Constraint("Distance", 6, Q("17.911 mm")))
sketch12.addConstraint(Sketcher.Constraint("Distance", 14, Q("19.567 mm")))
sketch12.addConstraint(Sketcher.Constraint("DistanceX", 12, 1, 12, 2, Q("41.2622 mm")))
sketch12.addConstraint(Sketcher.Constraint("DistanceY", 15, 2, 15, 1, Q("31.3076 mm")))
sketch12.addConstraint(Sketcher.Constraint("DistanceX", -1, 1, 0, 3, Q("22.497 mm")))
sketch12.addConstraint(Sketcher.Constraint("DistanceX", -1, 1, 2, 2, Q("45.015 mm")))
sketch12.addConstraint(Sketcher.Constraint("DistanceX", -1, 1, 3, 2, Q("44.995 mm")))
sketch12.addConstraint(Sketcher.Constraint("DistanceY", 4, 2, -1, 1, Q("11.475 mm")))
sketch12.addConstraint(Sketcher.Constraint("DistanceY", 10, 1, -1, 1, Q("20.201 mm")))
sketch12.addConstraint(Sketcher.Constraint("DistanceX", -1, 1, 11, 2, Q("1.874 mm")))
sketch12.addConstraint(Sketcher.Constraint("DistanceY", 2, 2, 1, 1, Q("11.943 mm")))
sketch12.addConstraint(Sketcher.Constraint("DistanceX", 5, 1, 4, 2, Q("0.583 mm")))
sketch12.addConstraint(Sketcher.Constraint("DistanceY", 9, 2, 1, 1, Q("0.833 mm")))
sketch12.addConstraint(Sketcher.Constraint("DistanceY", 11, 2, 8, 2, Q("20.753 mm")))
sketch12.addConstraint(Sketcher.Constraint("DistanceX", -1, 1, 16, 2, Q("16.4355 mm")))
sketch12.setExpression("Constraints[26]", "Params.sketch12_diameter")
sketch12.setExpression("Constraints[27]", "Params.sketch12_radius")
sketch12.setExpression("Constraints[28]", "Params.sketch12_radius2")
sketch12.setExpression("Constraints[29]", "Params.sketch12_radius3")
sketch12.setExpression("Constraints[30]", "Params.sketch12_radius4")
pocket7 = body.newObject("PartDesign::Pocket", "Pocket006")
pocket7.Profile = sketch12
pocket7.setExpression("Length", "Params.pocket7_length")

doc.recompute()
